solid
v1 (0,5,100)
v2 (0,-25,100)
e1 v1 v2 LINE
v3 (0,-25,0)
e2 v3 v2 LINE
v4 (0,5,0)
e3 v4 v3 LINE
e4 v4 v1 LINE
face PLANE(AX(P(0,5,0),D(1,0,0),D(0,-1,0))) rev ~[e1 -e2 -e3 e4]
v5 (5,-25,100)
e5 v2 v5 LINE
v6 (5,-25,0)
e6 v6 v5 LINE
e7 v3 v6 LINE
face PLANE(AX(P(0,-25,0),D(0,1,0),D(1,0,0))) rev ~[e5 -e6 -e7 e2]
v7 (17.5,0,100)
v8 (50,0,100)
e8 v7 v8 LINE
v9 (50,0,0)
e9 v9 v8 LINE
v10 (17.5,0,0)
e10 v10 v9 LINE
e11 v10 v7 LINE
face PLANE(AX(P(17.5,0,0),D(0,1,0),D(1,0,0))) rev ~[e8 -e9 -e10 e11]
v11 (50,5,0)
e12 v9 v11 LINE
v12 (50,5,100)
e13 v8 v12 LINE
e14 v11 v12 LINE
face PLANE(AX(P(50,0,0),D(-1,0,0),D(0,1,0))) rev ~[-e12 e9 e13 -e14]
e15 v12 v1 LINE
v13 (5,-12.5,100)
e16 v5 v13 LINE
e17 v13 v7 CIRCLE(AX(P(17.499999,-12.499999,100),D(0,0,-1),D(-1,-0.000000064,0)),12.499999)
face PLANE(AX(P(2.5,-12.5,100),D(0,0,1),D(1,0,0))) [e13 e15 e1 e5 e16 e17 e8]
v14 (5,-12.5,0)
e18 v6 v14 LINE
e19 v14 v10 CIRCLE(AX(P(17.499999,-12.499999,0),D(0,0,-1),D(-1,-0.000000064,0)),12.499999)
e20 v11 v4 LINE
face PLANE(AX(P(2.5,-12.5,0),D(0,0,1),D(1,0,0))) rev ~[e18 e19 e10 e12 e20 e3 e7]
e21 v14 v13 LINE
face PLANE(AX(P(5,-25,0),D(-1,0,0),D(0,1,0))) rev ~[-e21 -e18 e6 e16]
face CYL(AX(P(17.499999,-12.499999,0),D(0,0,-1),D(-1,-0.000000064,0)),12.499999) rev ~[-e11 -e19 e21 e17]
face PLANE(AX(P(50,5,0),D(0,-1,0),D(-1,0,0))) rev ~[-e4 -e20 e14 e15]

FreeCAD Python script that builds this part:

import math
import FreeCAD as App
import Part
import Sketcher
from FreeCAD import Vector

doc = App.newDocument("Part")
params = doc.addObject("Spreadsheet::Sheet", "Params")
for row, (alias, value) in enumerate([
    ("sketch1_radius", "12.499999 mm"),
    ("sketch1_width", "5 mm"),
    ("sketch1_width2", "50 mm"),
    ("sketch1_height", "30 mm"),
    ("pad1_length", "100 mm"),
], start=1):
    params.set(f"A{row}", alias)
    params.set(f"B{row}", "=" + value)
    params.setAlias(f"B{row}", alias)

body = doc.addObject("PartDesign::Body", "Body")

# Sketch on XY plane
sketch1 = body.newObject("Sketcher::SketchObject", "Sketch")
sketch1.AttachmentSupport = (doc.getObject("XY_Plane"), [""])
sketch1.MapMode = "FlatFace"
sketch1.addGeometry([
    Part.LineSegment(Vector(0, -25, 0), Vector(5, -25, 0)),  # 0
    Part.LineSegment(Vector(5, -25, 0), Vector(5, -12.5, 0)),  # 1
    Part.ArcOfCircle(Part.Circle(Vector(17.499999, -12.499999, 0), Vector(0, 0, 1), 12.499999), math.radians(89.999996), math.radians(180.000004)),  # 2
    Part.LineSegment(Vector(17.5, 0, 0), Vector(50, 0, 0)),  # 3
    Part.LineSegment(Vector(50, 0, 0), Vector(50, 5, 0)),  # 4
    Part.LineSegment(Vector(50, 5, 0), Vector(0, 5, 0)),  # 5
    Part.LineSegment(Vector(0, 5, 0), Vector(0, -25, 0)),  # 6
], False)
sketch1.addConstraint([
    Sketcher.Constraint("Coincident", 0, 2, 1, 1),
    Sketcher.Constraint("Tangent", 1, 2, 2, 2),
    Sketcher.Constraint("Tangent", 2, 1, 3, 1),
    Sketcher.Constraint("Coincident", 3, 2, 4, 1),
    Sketcher.Constraint("Coincident", 4, 2, 5, 1),
    Sketcher.Constraint("Coincident", 5, 2, 6, 1),
    Sketcher.Constraint("Coincident", 6, 2, 0, 1),
    Sketcher.Constraint("Horizontal", 0),
    Sketcher.Constraint("Vertical", 1),
    Sketcher.Constraint("Horizontal", 3),
    Sketcher.Constraint("Vertical", 4),
    Sketcher.Constraint("Horizontal", 5),
    Sketcher.Constraint("Vertical", 6),
    Sketcher.Constraint("PointOnObject", 2, 1, -1),
    Sketcher.Constraint("PointOnObject", 5, 2, -2),
    Sketcher.Constraint("Equal", 0, 4),
    Sketcher.Constraint("Radius", 2, 12.499999),
    Sketcher.Constraint("DistanceX", 0, 1, 0, 2, 5.0),
    Sketcher.Constraint("DistanceX", 5, 2, 5, 1, 50.0),
    Sketcher.Constraint("DistanceY", 6, 2, 6, 1, 30.0),
])
sketch1.setExpression("Constraints[16]", "Params.sketch1_radius")
sketch1.setExpression("Constraints[17]", "Params.sketch1_width")
sketch1.setExpression("Constraints[18]", "Params.sketch1_width2")
sketch1.setExpression("Constraints[19]", "Params.sketch1_height")
pad1 = body.newObject("PartDesign::Pad", "Pad")
pad1.Profile = sketch1
pad1.setExpression("Length", "Params.pad1_length")

doc.recompute()
